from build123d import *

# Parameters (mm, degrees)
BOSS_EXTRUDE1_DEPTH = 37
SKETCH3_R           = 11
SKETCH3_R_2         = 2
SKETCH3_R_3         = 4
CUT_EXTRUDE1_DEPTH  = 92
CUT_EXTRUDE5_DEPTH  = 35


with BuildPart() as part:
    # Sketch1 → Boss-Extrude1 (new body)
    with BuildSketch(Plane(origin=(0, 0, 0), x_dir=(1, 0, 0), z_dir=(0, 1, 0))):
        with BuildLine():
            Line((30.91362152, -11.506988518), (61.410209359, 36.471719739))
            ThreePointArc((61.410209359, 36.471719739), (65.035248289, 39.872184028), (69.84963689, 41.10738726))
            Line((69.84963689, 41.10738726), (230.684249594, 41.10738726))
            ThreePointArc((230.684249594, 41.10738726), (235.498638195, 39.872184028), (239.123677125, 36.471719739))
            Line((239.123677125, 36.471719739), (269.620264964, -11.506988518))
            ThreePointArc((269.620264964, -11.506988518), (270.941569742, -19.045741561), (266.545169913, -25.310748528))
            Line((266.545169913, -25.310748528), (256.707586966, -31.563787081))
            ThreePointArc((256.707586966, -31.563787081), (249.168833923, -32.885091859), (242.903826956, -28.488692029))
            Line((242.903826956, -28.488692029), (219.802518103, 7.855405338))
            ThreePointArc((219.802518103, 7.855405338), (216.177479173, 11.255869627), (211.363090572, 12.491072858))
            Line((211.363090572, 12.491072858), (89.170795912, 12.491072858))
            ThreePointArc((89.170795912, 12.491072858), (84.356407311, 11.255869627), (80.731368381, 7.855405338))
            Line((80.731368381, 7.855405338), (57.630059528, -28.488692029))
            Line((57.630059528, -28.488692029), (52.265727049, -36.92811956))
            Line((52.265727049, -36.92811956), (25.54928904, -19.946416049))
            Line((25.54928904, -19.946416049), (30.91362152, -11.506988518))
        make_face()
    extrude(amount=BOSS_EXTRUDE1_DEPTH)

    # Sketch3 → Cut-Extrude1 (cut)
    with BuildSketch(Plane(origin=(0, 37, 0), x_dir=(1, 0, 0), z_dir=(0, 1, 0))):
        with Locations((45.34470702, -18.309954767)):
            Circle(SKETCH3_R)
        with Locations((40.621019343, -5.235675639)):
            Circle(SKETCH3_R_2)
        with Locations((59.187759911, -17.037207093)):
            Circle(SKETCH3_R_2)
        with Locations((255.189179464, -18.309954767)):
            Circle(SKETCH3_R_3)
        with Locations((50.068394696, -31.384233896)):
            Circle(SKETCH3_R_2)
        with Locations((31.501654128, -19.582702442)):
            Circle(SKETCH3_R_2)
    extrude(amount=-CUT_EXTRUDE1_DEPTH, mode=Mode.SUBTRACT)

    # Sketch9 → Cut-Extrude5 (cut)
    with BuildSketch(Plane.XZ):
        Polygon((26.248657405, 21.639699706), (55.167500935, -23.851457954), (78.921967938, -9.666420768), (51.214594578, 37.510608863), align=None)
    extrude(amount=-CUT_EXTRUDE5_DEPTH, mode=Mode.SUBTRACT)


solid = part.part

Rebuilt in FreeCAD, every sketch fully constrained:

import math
import FreeCAD as App
import Part
import Sketcher

V = App.Vector
Q = App.Units.Quantity

doc = App.newDocument("Part")
body = doc.addObject("PartDesign::Body", "Body")

# Sketch on XZ plane
sketch1 = body.newObject("Sketcher::SketchObject", "Sketch")
sketch1.AttachmentSupport = (doc.getObject("XZ_Plane"), [""])
sketch1.MapMode = "FlatFace"
sketch1.addGeometry([
    Part.LineSegment(V(61.410209, -36.47172, 0), V(30.913622, 11.506989, 0)),  # 0
    Part.LineSegment(V(30.913622, 11.506989, 0), V(25.549289, 19.946416, 0)),  # 1
    Part.LineSegment(V(25.549289, 19.946416, 0), V(52.265727, 36.92812, 0)),  # 2
    Part.LineSegment(V(52.265727, 36.92812, 0), V(57.63006, 28.488692, 0)),  # 3
    Part.LineSegment(V(57.63006, 28.488692, 0), V(80.731368, -7.855405, 0)),  # 4
    Part.ArcOfCircle(Part.Circle(V(89.170796, -2.491073, 0), V(0, 0, 1), 10), math.radians(-147.558837), math.radians(-90)),  # 5
    Part.LineSegment(V(89.170796, -12.491073, 0), V(211.363091, -12.491073, 0)),  # 6
    Part.ArcOfCircle(Part.Circle(V(211.363091, -2.491073, 0), V(0, 0, 1), 10), math.radians(-90), math.radians(-32.441163)),  # 7
    Part.LineSegment(V(219.802518, -7.855405, 0), V(242.903827, 28.488692, 0)),  # 8
    Part.ArcOfCircle(Part.Circle(V(251.343254, 23.12436, 0), V(0, 0, 1), 10), math.radians(57.558837), math.radians(147.558837)),  # 9
    Part.LineSegment(V(256.707587, 31.563787, 0), V(266.54517, 25.310749, 0)),  # 10
    Part.ArcOfCircle(Part.Circle(V(261.180837, 16.871321, 0), V(0, 0, 1), 10), math.radians(-32.441163), math.radians(57.558837)),  # 11
    Part.LineSegment(V(269.620265, 11.506989, 0), V(239.123677, -36.47172, 0)),  # 12
    Part.ArcOfCircle(Part.Circle(V(230.68425, -31.107387, 0), V(0, 0, 1), 10), math.radians(-90), math.radians(-32.441163)),  # 13
    Part.LineSegment(V(230.68425, -41.107387, 0), V(69.849637, -41.107387, 0)),  # 14
    Part.ArcOfCircle(Part.Circle(V(69.849637, -31.107387, 0), V(0, 0, 1), 10), math.radians(-147.558837), math.radians(-90)),  # 15
], False)
sketch1.addConstraint([
    Sketcher.Constraint("Coincident", 0, 2, 1, 1),
    Sketcher.Constraint("Coincident", 1, 2, 2, 1),
    Sketcher.Constraint("Coincident", 2, 2, 3, 1),
    Sketcher.Constraint("Coincident", 3, 2, 4, 1),
    Sketcher.Constraint("Tangent", 4, 2, 5, 1),
    Sketcher.Constraint("Tangent", 5, 2, 6, 1),
    Sketcher.Constraint("Tangent", 6, 2, 7, 1),
    Sketcher.Constraint("Tangent", 7, 2, 8, 1),
    Sketcher.Constraint("Tangent", 8, 2, 9, 2),
    Sketcher.Constraint("Tangent", 9, 1, 10, 1),
    Sketcher.Constraint("Tangent", 10, 2, 11, 2),
    Sketcher.Constraint("Tangent", 11, 1, 12, 1),
    Sketcher.Constraint("Tangent", 12, 2, 13, 2),
    Sketcher.Constraint("Tangent", 13, 1, 14, 1),
    Sketcher.Constraint("Tangent", 14, 2, 15, 2),
    Sketcher.Constraint("Tangent", 15, 1, 0, 1),
    Sketcher.Constraint("Horizontal", 6),
    Sketcher.Constraint("Horizontal", 14),
    Sketcher.Constraint("Equal", 5, 7),
    Sketcher.Constraint("Equal", 7, 9),
    Sketcher.Constraint("Equal", 9, 11),
    Sketcher.Constraint("Equal", 11, 13),
    Sketcher.Constraint("Equal", 13, 15),
    Sketcher.Constraint("Parallel", 0, 1),
    Sketcher.Constraint("Perpendicular", 1, 2),
    Sketcher.Constraint("Perpendicular", 2, 3),
    Sketcher.Constraint("Parallel", 3, 4),
    Sketcher.Constraint("Perpendicular", 8, 10),
    Sketcher.Constraint("Perpendicular", 10, 12),
    Sketcher.Constraint("Horizontal", 4, 2, 7, 2),
    Sketcher.Constraint("Horizontal", 3, 2, 8, 2),
    Sketcher.Constraint("Horizontal", 0, 2, 11, 1),
    Sketcher.Constraint("Equal", 1, 3),
    Sketcher.Constraint("Radius", 5, Q("10 mm")),
    Sketcher.Constraint("Distance", 1, Q("10 mm")),
    Sketcher.Constraint("DistanceX", 15, 3, 11, 3, Q("191.331201 mm")),
    Sketcher.Constraint("DistanceX", 1, 2, 7, 3, Q("185.813802 mm")),
    Sketcher.Constraint("DistanceY", 11, 1, 9, 1, Q("20.056799 mm")),
    Sketcher.Constraint("DistanceX", 6, 1, 6, 2, Q("122.192295 mm")),
    Sketcher.Constraint("DistanceX", 14, 2, 14, 1, Q("160.834613 mm")),
    Sketcher.Constraint("DistanceX", -1, 1, 7, 3, Q("211.363091 mm")),
    Sketcher.Constraint("DistanceY", -1, 1, 9, 3, Q("23.12436 mm")),
])
pad1 = body.newObject("PartDesign::Pad", "Pad")
pad1.Profile = sketch1
pad1.Length = 37
pad1.Reversed = True

# Sketch on XZ plane
sketch2 = body.newObject("Sketcher::SketchObject", "Sketch001")
sketch2.AttachmentSupport = (doc.getObject("XZ_Plane"), [""])
sketch2.MapMode = "FlatFace"
sketch2.AttachmentOffset = App.Placement(V(0, 0, -37), App.Rotation())
sketch2.addGeometry([
    Part.Circle(V(45.344707, 18.309955, 0), V(0, 0, 1), 11),  # 0
    Part.Circle(V(40.621019, 5.235676, 0), V(0, 0, 1), 2),  # 1
    Part.Circle(V(59.18776, 17.037207, 0), V(0, 0, 1), 2),  # 2
    Part.Circle(V(255.189179, 18.309955, 0), V(0, 0, 1), 4),  # 3
    Part.Circle(V(50.068395, 31.384234, 0), V(0, 0, 1), 2),  # 4
    Part.Circle(V(31.501654, 19.582702, 0), V(0, 0, 1), 2),  # 5
], False)
sketch2.addConstraint([
    Sketcher.Constraint("Equal", 1, 2),
    Sketcher.Constraint("Equal", 2, 4),
    Sketcher.Constraint("Equal", 4, 5),
    Sketcher.Constraint("Horizontal", 0, 3, 3, 3),
    Sketcher.Constraint("Diameter", 0, Q("22 mm")),
    Sketcher.Constraint("Diameter", 1, Q("4 mm")),
    Sketcher.Constraint("Diameter", 3, Q("8 mm")),
    Sketcher.Constraint("DistanceX", -1, 1, 1, 3, Q("40.621019 mm")),
    Sketcher.Constraint("DistanceX", -1, 1, 2, 3, Q("59.18776 mm")),
    Sketcher.Constraint("DistanceX", -1, 1, 3, 3, Q("255.189179 mm")),
    Sketcher.Constraint("DistanceY", 1, 3, 0, 3, Q("13.074279 mm")),
    Sketcher.Constraint("DistanceY", 1, 3, 2, 3, Q("11.801531 mm")),
    Sketcher.Constraint("DistanceY", 0, 3, 4, 3, Q("13.074279 mm")),
    Sketcher.Constraint("DistanceX", 5, 3, 4, 3, Q("18.566741 mm")),
    Sketcher.Constraint("DistanceY", 5, 3, 4, 3, Q("11.801531 mm")),
    Sketcher.Constraint("DistanceX", -1, 1, 0, 3, Q("45.344707 mm")),
    Sketcher.Constraint("DistanceY", -1, 1, 0, 3, Q("18.309955 mm")),
    Sketcher.Constraint("DistanceX", -1, 1, 4, 3, Q("50.068395 mm")),
])
pocket1 = body.newObject("PartDesign::Pocket", "Pocket")
pocket1.Profile = sketch2
pocket1.Length = 92
pocket1.Reversed = True

# Sketch on XZ plane
sketch3 = body.newObject("Sketcher::SketchObject", "Sketch002")
sketch3.AttachmentSupport = (doc.getObject("XZ_Plane"), [""])
sketch3.MapMode = "FlatFace"
sketch3.addGeometry([
    Part.LineSegment(V(26.248657, 21.6397, 0), V(55.167501, -23.851458, 0)),
    Part.LineSegment(V(55.167501, -23.851458, 0), V(78.921968, -9.666421, 0)),
    Part.LineSegment(V(78.921968, -9.666421, 0), V(51.214595, 37.510609, 0)),
    Part.LineSegment(V(51.214595, 37.510609, 0), V(26.248657, 21.6397, 0)),
], False)
sketch3.addConstraint([
    Sketcher.Constraint("Coincident", 0, 2, 1, 1),
    Sketcher.Constraint("Coincident", 1, 2, 2, 1),
    Sketcher.Constraint("Coincident", 2, 2, 3, 1),
    Sketcher.Constraint("Coincident", 3, 2, 0, 1),
    Sketcher.Constraint("Perpendicular", 0, 3),
    Sketcher.Constraint("DistanceX", -1, 1, 0, 2, Q("55.167501 mm")),
    Sketcher.Constraint("DistanceY", -1, 1, 3, 2, Q("21.6397 mm")),
    Sketcher.Constraint("Distance", 1, Q("27.66749 mm")),
    Sketcher.Constraint("DistanceY", 1, 2, -1, 1, Q("9.666421 mm")),
    Sketcher.Constraint("DistanceY", -1, 1, 2, 2, Q("37.510609 mm")),
    Sketcher.Constraint("DistanceX", 3, 2, 1, 2, Q("52.673311 mm")),
    Sketcher.Constraint("Distance", 0, Q("53.904962 mm")),
])
pocket2 = body.newObject("PartDesign::Pocket", "Pocket001")
pocket2.Profile = sketch3
pocket2.Length = 35

doc.recompute()
